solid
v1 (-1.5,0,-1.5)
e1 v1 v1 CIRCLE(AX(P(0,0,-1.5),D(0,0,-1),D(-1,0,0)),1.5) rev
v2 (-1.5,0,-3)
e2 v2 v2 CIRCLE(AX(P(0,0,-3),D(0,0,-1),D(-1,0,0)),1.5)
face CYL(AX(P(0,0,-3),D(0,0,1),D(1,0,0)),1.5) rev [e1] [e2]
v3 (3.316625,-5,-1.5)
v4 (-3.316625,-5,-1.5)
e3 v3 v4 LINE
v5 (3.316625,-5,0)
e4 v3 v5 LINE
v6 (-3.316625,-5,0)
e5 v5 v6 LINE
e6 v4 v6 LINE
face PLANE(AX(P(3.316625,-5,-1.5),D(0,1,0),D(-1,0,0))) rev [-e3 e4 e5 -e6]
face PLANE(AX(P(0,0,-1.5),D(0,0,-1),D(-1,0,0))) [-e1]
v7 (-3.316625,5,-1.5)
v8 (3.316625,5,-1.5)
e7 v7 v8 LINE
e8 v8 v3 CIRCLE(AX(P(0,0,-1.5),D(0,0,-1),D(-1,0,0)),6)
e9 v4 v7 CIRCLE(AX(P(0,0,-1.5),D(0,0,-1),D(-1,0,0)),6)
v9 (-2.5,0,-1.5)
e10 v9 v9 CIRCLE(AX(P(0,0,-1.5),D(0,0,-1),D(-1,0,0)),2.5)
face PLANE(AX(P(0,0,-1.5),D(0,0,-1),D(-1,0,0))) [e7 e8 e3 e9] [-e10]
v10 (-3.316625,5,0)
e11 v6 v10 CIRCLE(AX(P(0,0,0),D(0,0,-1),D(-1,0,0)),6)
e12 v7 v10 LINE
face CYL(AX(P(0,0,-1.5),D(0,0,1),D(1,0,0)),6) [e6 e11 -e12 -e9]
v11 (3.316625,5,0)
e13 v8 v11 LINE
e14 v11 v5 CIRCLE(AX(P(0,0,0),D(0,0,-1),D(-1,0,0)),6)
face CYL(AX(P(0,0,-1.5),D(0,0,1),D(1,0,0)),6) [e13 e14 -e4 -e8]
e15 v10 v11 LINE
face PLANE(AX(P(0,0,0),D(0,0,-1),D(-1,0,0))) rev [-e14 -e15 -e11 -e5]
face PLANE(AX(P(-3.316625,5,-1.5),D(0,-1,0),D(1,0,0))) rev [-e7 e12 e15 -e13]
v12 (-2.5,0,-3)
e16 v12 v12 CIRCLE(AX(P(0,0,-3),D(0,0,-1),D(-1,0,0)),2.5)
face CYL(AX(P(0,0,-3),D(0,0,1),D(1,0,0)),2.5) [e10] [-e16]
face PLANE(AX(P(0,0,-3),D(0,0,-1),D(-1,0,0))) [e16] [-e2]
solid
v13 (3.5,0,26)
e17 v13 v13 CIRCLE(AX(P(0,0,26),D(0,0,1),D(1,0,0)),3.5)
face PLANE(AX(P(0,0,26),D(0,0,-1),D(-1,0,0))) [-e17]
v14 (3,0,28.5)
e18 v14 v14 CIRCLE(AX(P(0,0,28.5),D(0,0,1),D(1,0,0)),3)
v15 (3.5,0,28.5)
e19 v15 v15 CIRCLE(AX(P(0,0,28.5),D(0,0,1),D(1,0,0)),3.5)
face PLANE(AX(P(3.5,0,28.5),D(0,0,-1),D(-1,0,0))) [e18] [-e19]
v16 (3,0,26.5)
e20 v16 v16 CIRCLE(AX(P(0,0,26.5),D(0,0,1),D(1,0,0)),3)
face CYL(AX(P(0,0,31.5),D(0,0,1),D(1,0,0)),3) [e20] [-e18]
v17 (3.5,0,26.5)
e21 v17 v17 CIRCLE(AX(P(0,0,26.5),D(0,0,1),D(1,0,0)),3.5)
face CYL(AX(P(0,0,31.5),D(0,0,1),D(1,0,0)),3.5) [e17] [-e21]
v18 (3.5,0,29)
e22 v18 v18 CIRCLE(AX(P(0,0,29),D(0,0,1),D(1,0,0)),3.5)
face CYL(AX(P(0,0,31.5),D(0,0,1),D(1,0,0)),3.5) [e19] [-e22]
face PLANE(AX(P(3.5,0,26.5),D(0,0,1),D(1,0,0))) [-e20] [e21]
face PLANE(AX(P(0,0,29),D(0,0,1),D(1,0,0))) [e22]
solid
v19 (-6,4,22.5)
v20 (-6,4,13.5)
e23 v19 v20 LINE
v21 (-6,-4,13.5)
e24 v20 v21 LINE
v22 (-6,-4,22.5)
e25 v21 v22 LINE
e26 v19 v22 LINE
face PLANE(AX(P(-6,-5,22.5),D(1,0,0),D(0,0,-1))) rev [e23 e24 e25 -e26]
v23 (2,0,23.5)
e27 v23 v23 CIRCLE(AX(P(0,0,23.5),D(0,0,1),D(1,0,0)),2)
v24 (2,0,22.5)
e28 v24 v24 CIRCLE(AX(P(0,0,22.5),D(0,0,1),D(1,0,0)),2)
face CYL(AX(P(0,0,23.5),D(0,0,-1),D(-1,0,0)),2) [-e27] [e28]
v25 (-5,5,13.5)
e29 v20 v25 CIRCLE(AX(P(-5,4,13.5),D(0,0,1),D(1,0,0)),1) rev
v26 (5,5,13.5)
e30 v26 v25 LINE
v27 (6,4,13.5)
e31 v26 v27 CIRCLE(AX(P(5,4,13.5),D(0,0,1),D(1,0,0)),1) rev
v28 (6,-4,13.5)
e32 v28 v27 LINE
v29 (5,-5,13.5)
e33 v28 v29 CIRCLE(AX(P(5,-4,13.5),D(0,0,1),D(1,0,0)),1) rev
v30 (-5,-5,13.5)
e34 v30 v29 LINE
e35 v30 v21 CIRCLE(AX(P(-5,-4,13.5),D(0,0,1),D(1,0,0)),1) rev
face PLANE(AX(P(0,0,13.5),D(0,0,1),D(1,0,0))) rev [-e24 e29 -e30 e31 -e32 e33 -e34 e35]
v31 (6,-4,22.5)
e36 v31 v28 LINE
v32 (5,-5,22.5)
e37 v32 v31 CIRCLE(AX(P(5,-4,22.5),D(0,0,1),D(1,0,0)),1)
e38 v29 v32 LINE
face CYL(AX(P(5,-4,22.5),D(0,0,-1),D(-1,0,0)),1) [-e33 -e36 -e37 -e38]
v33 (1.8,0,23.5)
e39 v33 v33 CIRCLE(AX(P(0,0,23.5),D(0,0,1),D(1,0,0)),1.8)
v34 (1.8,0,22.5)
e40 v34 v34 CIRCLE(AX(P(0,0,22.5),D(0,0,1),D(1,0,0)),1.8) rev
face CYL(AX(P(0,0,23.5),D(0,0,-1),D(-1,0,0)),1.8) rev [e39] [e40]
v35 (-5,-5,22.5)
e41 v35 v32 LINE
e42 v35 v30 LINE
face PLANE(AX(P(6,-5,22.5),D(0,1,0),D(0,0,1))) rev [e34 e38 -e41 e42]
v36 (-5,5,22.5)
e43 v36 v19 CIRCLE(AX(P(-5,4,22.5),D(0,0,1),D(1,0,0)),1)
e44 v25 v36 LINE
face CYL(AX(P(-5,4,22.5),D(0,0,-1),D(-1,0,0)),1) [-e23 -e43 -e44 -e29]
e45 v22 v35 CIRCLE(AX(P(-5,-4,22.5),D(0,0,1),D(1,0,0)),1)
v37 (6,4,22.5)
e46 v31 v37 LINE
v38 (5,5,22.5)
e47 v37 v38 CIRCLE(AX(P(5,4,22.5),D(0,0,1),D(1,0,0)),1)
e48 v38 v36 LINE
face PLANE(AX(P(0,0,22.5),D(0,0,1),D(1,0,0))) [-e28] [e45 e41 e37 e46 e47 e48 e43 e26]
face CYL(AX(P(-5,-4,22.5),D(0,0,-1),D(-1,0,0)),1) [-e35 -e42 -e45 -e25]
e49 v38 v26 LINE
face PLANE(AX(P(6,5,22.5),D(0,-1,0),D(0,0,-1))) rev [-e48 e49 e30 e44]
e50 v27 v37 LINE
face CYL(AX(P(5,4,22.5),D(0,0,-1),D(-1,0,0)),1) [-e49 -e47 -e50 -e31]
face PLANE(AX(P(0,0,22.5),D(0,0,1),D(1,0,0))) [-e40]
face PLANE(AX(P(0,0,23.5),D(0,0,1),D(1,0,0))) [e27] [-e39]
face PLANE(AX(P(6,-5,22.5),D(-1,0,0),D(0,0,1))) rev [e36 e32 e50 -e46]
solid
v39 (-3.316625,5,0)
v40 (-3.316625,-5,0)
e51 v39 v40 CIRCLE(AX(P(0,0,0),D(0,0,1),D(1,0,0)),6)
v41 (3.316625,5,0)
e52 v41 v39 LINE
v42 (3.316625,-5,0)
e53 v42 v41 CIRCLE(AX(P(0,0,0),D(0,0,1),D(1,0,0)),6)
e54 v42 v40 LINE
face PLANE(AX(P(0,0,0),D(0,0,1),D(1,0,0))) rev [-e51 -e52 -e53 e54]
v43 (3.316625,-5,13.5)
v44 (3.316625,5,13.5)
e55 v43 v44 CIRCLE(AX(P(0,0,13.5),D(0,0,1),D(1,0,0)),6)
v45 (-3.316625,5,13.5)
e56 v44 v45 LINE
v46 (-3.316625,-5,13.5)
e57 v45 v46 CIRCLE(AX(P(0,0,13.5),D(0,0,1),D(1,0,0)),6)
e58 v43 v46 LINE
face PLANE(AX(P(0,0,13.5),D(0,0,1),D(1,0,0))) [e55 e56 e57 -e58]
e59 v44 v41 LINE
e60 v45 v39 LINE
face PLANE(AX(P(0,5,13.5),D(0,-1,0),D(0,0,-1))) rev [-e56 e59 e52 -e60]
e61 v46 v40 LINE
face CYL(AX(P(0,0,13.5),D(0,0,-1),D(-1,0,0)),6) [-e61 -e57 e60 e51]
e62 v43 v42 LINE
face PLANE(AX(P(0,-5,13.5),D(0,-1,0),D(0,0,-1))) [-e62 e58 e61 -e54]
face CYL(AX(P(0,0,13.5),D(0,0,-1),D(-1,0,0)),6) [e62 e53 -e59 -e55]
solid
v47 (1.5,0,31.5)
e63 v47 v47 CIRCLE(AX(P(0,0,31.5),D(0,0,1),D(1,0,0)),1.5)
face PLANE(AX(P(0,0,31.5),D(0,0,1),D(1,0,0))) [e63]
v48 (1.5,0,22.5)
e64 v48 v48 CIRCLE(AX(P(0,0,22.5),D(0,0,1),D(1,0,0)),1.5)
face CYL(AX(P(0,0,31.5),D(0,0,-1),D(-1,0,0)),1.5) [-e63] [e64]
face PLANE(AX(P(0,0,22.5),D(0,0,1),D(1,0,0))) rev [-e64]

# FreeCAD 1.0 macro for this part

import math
import FreeCAD as App
import Part
import Sketcher
from FreeCAD import Vector


def edges_at(feature, points):
    """Names of the edges that pass closest to the given points."""
    edges = feature.Shape.Edges
    near = lambda p: min(range(len(edges)), key=lambda i: edges[i].distToShape(Part.Vertex(*p))[0])
    return sorted({f"Edge{near(p) + 1}" for p in points})


def add_polygon(sketch, points):
    """Adds a closed chain of lines whose ends are joined by coincident constraints."""
    first, n = sketch.GeometryCount, len(points)
    for a, b in zip(points, points[1:] + points[:1]):
        sketch.addGeometry(Part.LineSegment(App.Vector(*a, 0), App.Vector(*b, 0)), False)
    for i in range(n):
        sketch.addConstraint(Sketcher.Constraint("Coincident", first + i, 2, first + (i + 1) % n, 1))

doc = App.newDocument("Part")
body = doc.addObject("PartDesign::Body", "Body")

sketch1 = body.newObject("Sketcher::SketchObject", "Sketch")
sketch1.AttachmentSupport = (doc.getObject("XY_Plane"), [""])
sketch1.MapMode = "FlatFace"
sketch1.addGeometry([
    Part.ArcOfCircle(Part.Circle(Vector(0, 0, 0), Vector(0, 0, 1), 6), math.radians(124), math.radians(236)),
    Part.LineSegment(Vector(-3, -5, 0), Vector(3, -5, 0)),
    Part.ArcOfCircle(Part.Circle(Vector(0, 0, 0), Vector(0, 0, 1), 6), math.radians(-56), math.radians(56)),
    Part.LineSegment(Vector(3, 5, 0), Vector(-3, 5, 0)),
], False)
sketch1.addConstraint([
    Sketcher.Constraint("Coincident", 0, 2, 1, 1),
    Sketcher.Constraint("Coincident", 1, 2, 2, 1),
    Sketcher.Constraint("Coincident", 2, 2, 3, 1),
    Sketcher.Constraint("Coincident", 3, 2, 0, 1),
    Sketcher.Constraint("Horizontal", 1),
    Sketcher.Constraint("Horizontal", 3),
    Sketcher.Constraint("Coincident", 0, 3, -1, 1),
    Sketcher.Constraint("Coincident", 2, 3, -1, 1),
    Sketcher.Constraint("Equal", 0, 2),
    Sketcher.Constraint("Vertical", 1, 2, 2, 2),
    Sketcher.Constraint("Radius", 0, 6.0),
    Sketcher.Constraint("DistanceY", 0, 2, -1, 1, 5.0),
])
pad1 = body.newObject("PartDesign::Pad", "Pad")
pad1.Profile = sketch1
pad1.Length = 13.5
body2 = doc.addObject("PartDesign::Body", "Body001")

sketch2 = body2.newObject("Sketcher::SketchObject", "Sketch001")
sketch2.AttachmentSupport = (doc.getObject("XY_Plane001"), [""])
sketch2.MapMode = "FlatFace"
sketch2.AttachmentOffset = App.Placement(Vector(0, 0, 13.5), App.Rotation())
add_polygon(sketch2, [(-6, 5), (-6, -5), (6, -5), (6, 5)])
sketch2.addConstraint([
    Sketcher.Constraint("Vertical", 0),
    Sketcher.Constraint("Horizontal", 1),
    Sketcher.Constraint("Vertical", 2),
    Sketcher.Constraint("Horizontal", 3),
    Sketcher.Constraint("Symmetric", 0, 2, 2, 2, -1, 1),
    Sketcher.Constraint("DistanceX", 1, 1, 1, 2, 12.0),
    Sketcher.Constraint("DistanceY", 0, 2, 0, 1, 10.0),
])
pad2 = body2.newObject("PartDesign::Pad", "Pad001")
pad2.Profile = sketch2
pad2.Length = 9

sketch3 = body2.newObject("Sketcher::SketchObject", "Sketch002")
sketch3.AttachmentSupport = (doc.getObject("XY_Plane001"), [""])
sketch3.MapMode = "FlatFace"
sketch3.AttachmentOffset = App.Placement(Vector(0, 0, 22.5), App.Rotation())
sketch3.addGeometry([
    Part.Circle(Vector(0, 0, 0), Vector(0, 0, 1), 2),
    Part.Circle(Vector(0, 0, 0), Vector(0, 0, 1), 1.8),
], False)
sketch3.addConstraint([
    Sketcher.Constraint("Coincident", 0, 3, -1, 1),
    Sketcher.Constraint("Coincident", 1, 3, -1, 1),
    Sketcher.Constraint("Diameter", 0, 4.0),
    Sketcher.Constraint("Diameter", 1, 3.6),
])
pad3 = body2.newObject("PartDesign::Pad", "Pad002")
pad3.Profile = sketch3
pad3.Length = 1
doc.recompute()

fillet = body2.newObject("PartDesign::Fillet", "Fillet")
fillet.Base = (pad3, edges_at(pad3, [
    (-6, 5, 18),
    (6, 5, 18),
    (6, -5, 18),
    (-6, -5, 18),
]))
fillet.Radius = 1
body3 = doc.addObject("PartDesign::Body", "Body002")

sketch4 = body3.newObject("Sketcher::SketchObject", "Sketch003")
sketch4.AttachmentSupport = (doc.getObject("XY_Plane002"), [""])
sketch4.MapMode = "FlatFace"
sketch4.AttachmentOffset = App.Placement(Vector(0, 0, 22.5), App.Rotation())
sketch4.addGeometry(Part.Circle(Vector(0, 0, 0), Vector(0, 0, 1), 1.5), False)
sketch4.addConstraint([
    Sketcher.Constraint("Coincident", 0, 3, -1, 1),
    Sketcher.Constraint("Diameter", 0, 3.0),
])
pad4 = body3.newObject("PartDesign::Pad", "Pad003")
pad4.Profile = sketch4
pad4.Length = 9
body4 = doc.addObject("PartDesign::Body", "Body003")

sketch5 = body4.newObject("Sketcher::SketchObject", "Sketch004")
sketch5.AttachmentSupport = (doc.getObject("XY_Plane003"), [""])
sketch5.MapMode = "FlatFace"
sketch5.addGeometry([
    Part.LineSegment(Vector(-3, 5, 0), Vector(3, 5, 0)),
    Part.ArcOfCircle(Part.Circle(Vector(0, 0, 0), Vector(0, 0, 1), 6), math.radians(-56), math.radians(56)),
    Part.LineSegment(Vector(3, -5, 0), Vector(-3, -5, 0)),
    Part.ArcOfCircle(Part.Circle(Vector(0, 0, 0), Vector(0, 0, 1), 6), math.radians(124), math.radians(236)),
], False)
sketch5.addConstraint([
    Sketcher.Constraint("Coincident", 0, 2, 1, 2),
    Sketcher.Constraint("Coincident", 1, 1, 2, 1),
    Sketcher.Constraint("Coincident", 2, 2, 3, 2),
    Sketcher.Constraint("Coincident", 3, 1, 0, 1),
    Sketcher.Constraint("Horizontal", 0),
    Sketcher.Constraint("Horizontal", 2),
    Sketcher.Constraint("Coincident", 1, 3, -1, 1),
    Sketcher.Constraint("Coincident", 3, 3, -1, 1),
    Sketcher.Constraint("Equal", 1, 3),
    Sketcher.Constraint("Vertical", 0, 2, 1, 1),
    Sketcher.Constraint("Radius", 1, 6.0),
    Sketcher.Constraint("DistanceY", -1, 1, 0, 2, 5.0),
])
pad5 = body4.newObject("PartDesign::Pad", "Pad004")
pad5.Profile = sketch5
pad5.Length = 1.5
pad5.Reversed = True

sketch6 = body4.newObject("Sketcher::SketchObject", "Sketch005")
sketch6.AttachmentSupport = (doc.getObject("XY_Plane003"), [""])
sketch6.MapMode = "FlatFace"
sketch6.AttachmentOffset = App.Placement(Vector(0, 0, -1.5), App.Rotation())
sketch6.addGeometry([
    Part.Circle(Vector(0, 0, 0), Vector(0, 0, 1), 2.5),
    Part.Circle(Vector(0, 0, 0), Vector(0, 0, 1), 1.5),
], False)
sketch6.addConstraint([
    Sketcher.Constraint("Coincident", 0, 3, -1, 1),
    Sketcher.Constraint("Coincident", 1, 3, -1, 1),
    Sketcher.Constraint("Diameter", 0, 5.0),
    Sketcher.Constraint("Diameter", 1, 3.0),
])
pad6 = body4.newObject("PartDesign::Pad", "Pad005")
pad6.Profile = sketch6
pad6.Length = 1.5
pad6.Reversed = True
body5 = doc.addObject("PartDesign::Body", "Body004")

sketch7 = body5.newObject("Sketcher::SketchObject", "Sketch006")
sketch7.AttachmentSupport = (doc.getObject("XZ_Plane004"), [""])
sketch7.MapMode = "FlatFace"
add_polygon(sketch7, [(0, 29), (3.5, 29), (3.5, 28.5), (3, 28.5), (3, 26.5), (3.5, 26.5), (3.5, 26), (0, 26)])
sketch7.addConstraint([
    Sketcher.Constraint("Horizontal", 0),
    Sketcher.Constraint("Vertical", 1),
    Sketcher.Constraint("Horizontal", 2),
    Sketcher.Constraint("Vertical", 3),
    Sketcher.Constraint("Horizontal", 4),
    Sketcher.Constraint("Vertical", 5),
    Sketcher.Constraint("Horizontal", 6),
    Sketcher.Constraint("Vertical", 7),
    Sketcher.Constraint("PointOnObject", 6, 2, -2),
    Sketcher.Constraint("Vertical", 1, 2, 4, 2),
    Sketcher.Constraint("Equal", 4, 1),
    Sketcher.Constraint("Equal", 1, 5),
    Sketcher.Constraint("DistanceY", 3, 2, 3, 1, 2.0),
    Sketcher.Constraint("DistanceY", 7, 1, 7, 2, 3.0),
    Sketcher.Constraint("DistanceX", 0, 1, 0, 2, 3.5),
    Sketcher.Constraint("DistanceY", -1, 1, 0, 2, 29.0),
])
revolution = body5.newObject("PartDesign::Revolution", "Revolution")
revolution.Profile = sketch7
revolution.ReferenceAxis = (sketch7, ["V_Axis"])
revolution.Angle = 360

doc.recompute()
